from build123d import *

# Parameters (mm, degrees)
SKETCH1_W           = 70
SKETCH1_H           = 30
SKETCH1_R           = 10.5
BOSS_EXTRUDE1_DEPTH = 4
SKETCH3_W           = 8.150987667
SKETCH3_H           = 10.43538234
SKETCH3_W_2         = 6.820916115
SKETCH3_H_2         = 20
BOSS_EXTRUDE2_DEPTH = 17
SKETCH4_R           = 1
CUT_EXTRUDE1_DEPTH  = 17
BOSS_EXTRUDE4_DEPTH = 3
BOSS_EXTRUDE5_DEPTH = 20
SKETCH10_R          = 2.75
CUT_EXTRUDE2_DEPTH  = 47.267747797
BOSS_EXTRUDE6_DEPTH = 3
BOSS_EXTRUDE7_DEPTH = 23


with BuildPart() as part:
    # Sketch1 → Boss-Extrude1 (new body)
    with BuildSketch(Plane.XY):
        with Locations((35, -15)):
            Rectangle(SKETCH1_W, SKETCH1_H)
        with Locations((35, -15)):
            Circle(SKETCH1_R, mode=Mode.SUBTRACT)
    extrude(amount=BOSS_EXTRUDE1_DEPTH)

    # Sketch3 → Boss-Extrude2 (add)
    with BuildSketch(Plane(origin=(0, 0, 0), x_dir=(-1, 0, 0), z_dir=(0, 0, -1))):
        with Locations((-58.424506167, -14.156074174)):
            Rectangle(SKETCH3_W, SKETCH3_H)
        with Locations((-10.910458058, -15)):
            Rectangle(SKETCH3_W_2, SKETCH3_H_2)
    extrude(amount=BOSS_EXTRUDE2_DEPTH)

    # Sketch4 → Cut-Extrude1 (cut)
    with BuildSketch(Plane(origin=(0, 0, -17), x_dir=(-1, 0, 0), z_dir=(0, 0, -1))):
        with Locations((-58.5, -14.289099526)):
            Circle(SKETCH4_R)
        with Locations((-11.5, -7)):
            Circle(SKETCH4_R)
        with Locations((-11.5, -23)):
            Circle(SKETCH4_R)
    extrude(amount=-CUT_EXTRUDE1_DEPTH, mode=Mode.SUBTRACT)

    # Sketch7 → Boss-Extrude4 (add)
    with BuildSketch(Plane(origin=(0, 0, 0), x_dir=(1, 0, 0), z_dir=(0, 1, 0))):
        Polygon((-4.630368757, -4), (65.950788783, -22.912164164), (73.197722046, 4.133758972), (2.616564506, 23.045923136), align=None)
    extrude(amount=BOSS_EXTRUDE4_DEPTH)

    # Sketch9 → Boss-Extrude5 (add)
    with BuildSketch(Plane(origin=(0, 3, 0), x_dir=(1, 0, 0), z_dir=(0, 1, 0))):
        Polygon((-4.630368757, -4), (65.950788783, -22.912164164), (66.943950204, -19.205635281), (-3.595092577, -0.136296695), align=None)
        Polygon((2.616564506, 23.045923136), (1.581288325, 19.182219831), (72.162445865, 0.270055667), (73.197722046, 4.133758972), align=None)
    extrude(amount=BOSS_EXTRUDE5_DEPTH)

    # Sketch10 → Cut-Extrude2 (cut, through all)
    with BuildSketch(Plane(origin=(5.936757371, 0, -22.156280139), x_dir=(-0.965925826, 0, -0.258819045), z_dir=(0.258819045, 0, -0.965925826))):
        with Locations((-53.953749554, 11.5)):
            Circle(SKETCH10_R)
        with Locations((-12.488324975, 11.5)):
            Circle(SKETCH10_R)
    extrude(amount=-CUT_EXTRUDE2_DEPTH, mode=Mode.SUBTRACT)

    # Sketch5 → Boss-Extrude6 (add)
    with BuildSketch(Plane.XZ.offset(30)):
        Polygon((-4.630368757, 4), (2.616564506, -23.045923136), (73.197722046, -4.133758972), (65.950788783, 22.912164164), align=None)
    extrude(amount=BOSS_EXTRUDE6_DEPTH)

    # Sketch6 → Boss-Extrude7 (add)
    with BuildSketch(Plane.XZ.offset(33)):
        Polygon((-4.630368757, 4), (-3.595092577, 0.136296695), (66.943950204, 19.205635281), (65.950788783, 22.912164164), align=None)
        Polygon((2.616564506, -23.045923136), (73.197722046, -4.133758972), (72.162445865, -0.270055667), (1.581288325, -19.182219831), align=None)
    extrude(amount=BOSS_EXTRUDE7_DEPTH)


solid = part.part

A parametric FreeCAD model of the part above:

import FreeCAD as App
import Part
import Sketcher
from FreeCAD import Vector
Q = App.Units.Quantity

doc = App.newDocument("Part")
params = doc.addObject("Spreadsheet::Sheet", "Params")
for row, (alias, value) in enumerate([
    ("sketch1_diameter", "21 mm"),
    ("sketch1_width", "70 mm"),
    ("sketch1_height", "30 mm"),
    ("pad1_length", "4 mm"),
    ("sketch2_height", "20 mm"),
    ("pad2_length", "17 mm"),
    ("sketch3_diameter", "2 mm"),
    ("pocket1_length", "17 mm"),
    ("sketch4_length", "28 mm"),
    ("pad3_length", "3 mm"),
    ("sketch5_length", "4 mm"),
    ("pad4_length", "20 mm"),
    ("sketch6_diameter", "5.5 mm"),
    ("sketch7_length", "28 mm"),
    ("pad5_length", "3 mm"),
    ("sketch8_length", "4 mm"),
    ("pad6_length", "23 mm"),
], start=1):
    params.set(f"A{row}", alias)
    params.set(f"B{row}", "=" + value)
    params.setAlias(f"B{row}", alias)

body = doc.addObject("PartDesign::Body", "Body")

sketch1 = doc.addObject("Sketcher::SketchObject", "Sketch")
body.addObject(sketch1)
sketch1.AttachmentSupport = (doc.XY_Plane, [""])
sketch1.MapMode = "FlatFace"
sketch1.addGeometry([
    Part.LineSegment(Vector(0, 0, 0), Vector(0, -30, 0)),
    Part.LineSegment(Vector(0, -30, 0), Vector(70, -30, 0)),
    Part.LineSegment(Vector(70, -30, 0), Vector(70, 0, 0)),
    Part.LineSegment(Vector(70, 0, 0), Vector(0, 0, 0)),
    Part.Circle(Vector(35, -15, 0), Vector(0, 0, 1), 10),
], False)
sketch1.addConstraint([
    Sketcher.Constraint("Coincident", 0, 2, 1, 1),
    Sketcher.Constraint("Coincident", 1, 2, 2, 1),
    Sketcher.Constraint("Coincident", 2, 2, 3, 1),
    Sketcher.Constraint("Coincident", 3, 2, 0, 1),
    Sketcher.Constraint("Vertical", 0),
    Sketcher.Constraint("Horizontal", 1),
    Sketcher.Constraint("Vertical", 2),
    Sketcher.Constraint("Horizontal", 3),
    Sketcher.Constraint("Coincident", 3, 2, -1, 1),
    Sketcher.Constraint("Diameter", 4, Q("21 mm")),
    Sketcher.Constraint("DistanceX", 1, 1, 1, 2, Q("70 mm")),
    Sketcher.Constraint("DistanceY", 0, 2, 0, 1, Q("30 mm")),
    Sketcher.Constraint("DistanceX", -1, 1, 4, 3, Q("35 mm")),
    Sketcher.Constraint("DistanceY", 4, 3, -1, 1, Q("15 mm")),
])
sketch1.setExpression("Constraints[9]", "Params.sketch1_diameter")
sketch1.setExpression("Constraints[10]", "Params.sketch1_width")
sketch1.setExpression("Constraints[11]", "Params.sketch1_height")
pad1 = doc.addObject("PartDesign::Pad", "Pad")
body.addObject(pad1)
pad1.Profile = sketch1
pad1.setExpression("Length", "Params.pad1_length")

sketch2 = doc.addObject("Sketcher::SketchObject", "Sketch001")
body.addObject(sketch2)
sketch2.AttachmentSupport = (doc.XY_Plane, [""])
sketch2.MapMode = "FlatFace"
sketch2.addGeometry([
    Part.LineSegment(Vector(62, -9, 0), Vector(62, -19, 0)),
    Part.LineSegment(Vector(62, -19, 0), Vector(54, -19, 0)),
    Part.LineSegment(Vector(54, -19, 0), Vector(54, -9, 0)),
    Part.LineSegment(Vector(54, -9, 0), Vector(62, -9, 0)),
    Part.LineSegment(Vector(14, -5, 0), Vector(14, -25, 0)),
    Part.LineSegment(Vector(14, -25, 0), Vector(8, -25, 0)),
    Part.LineSegment(Vector(8, -25, 0), Vector(8, -5, 0)),
    Part.LineSegment(Vector(8, -5, 0), Vector(14, -5, 0)),
], False)
sketch2.addConstraint([
    Sketcher.Constraint("Coincident", 0, 2, 1, 1),
    Sketcher.Constraint("Coincident", 1, 2, 2, 1),
    Sketcher.Constraint("Coincident", 2, 2, 3, 1),
    Sketcher.Constraint("Coincident", 3, 2, 0, 1),
    Sketcher.Constraint("Coincident", 4, 2, 5, 1),
    Sketcher.Constraint("Coincident", 5, 2, 6, 1),
    Sketcher.Constraint("Coincident", 6, 2, 7, 1),
    Sketcher.Constraint("Coincident", 7, 2, 4, 1),
    Sketcher.Constraint("Vertical", 0),
    Sketcher.Constraint("Horizontal", 1),
    Sketcher.Constraint("Vertical", 2),
    Sketcher.Constraint("Horizontal", 3),
    Sketcher.Constraint("Vertical", 4),
    Sketcher.Constraint("Horizontal", 5),
    Sketcher.Constraint("Vertical", 6),
    Sketcher.Constraint("Horizontal", 7),
    Sketcher.Constraint("DistanceY", 4, 2, 4, 1, Q("20 mm")),
    Sketcher.Constraint("DistanceY", 4, 2, -1, 1, Q("25 mm")),
    Sketcher.Constraint("DistanceX", 5, 2, 0, 2, Q("55 mm")),
    Sketcher.Constraint("DistanceX", -1, 1, 0, 2, Q("62.5 mm")),
    Sketcher.Constraint("DistanceX", 1, 2, 1, 1, Q("8.150988 mm")),
    Sketcher.Constraint("DistanceX", 5, 2, 5, 1, Q("6.820916 mm")),
    Sketcher.Constraint("DistanceY", 0, 2, 0, 1, Q("10.435382 mm")),
    Sketcher.Constraint("DistanceY", 0, 2, -1, 1, Q("19.373765 mm")),
])
sketch2.setExpression("Constraints[16]", "Params.sketch2_height")
pad2 = doc.addObject("PartDesign::Pad", "Pad001")
body.addObject(pad2)
pad2.Profile = sketch2
pad2.setExpression("Length", "Params.pad2_length")
pad2.Reversed = True

sketch3 = doc.addObject("Sketcher::SketchObject", "Sketch002")
body.addObject(sketch3)
sketch3.AttachmentSupport = (doc.XY_Plane, [""])
sketch3.MapMode = "FlatFace"
sketch3.AttachmentOffset = App.Placement(Vector(0, 0, -17), App.Rotation())
sketch3.addGeometry([
    Part.Circle(Vector(58.5, -14.3, 0), Vector(0, 0, 1), 1),
    Part.Circle(Vector(11.5, -7, 0), Vector(0, 0, 1), 1),
    Part.Circle(Vector(11.5, -23, 0), Vector(0, 0, 1), 1),
], False)
sketch3.addConstraint([
    Sketcher.Constraint("Equal", 0, 1),
    Sketcher.Constraint("Equal", 1, 2),
    Sketcher.Constraint("Vertical", 1, 3, 2, 3),
    Sketcher.Constraint("Diameter", 0, Q("2 mm")),
    Sketcher.Constraint("DistanceY", 1, 3, -1, 1, Q("7 mm")),
    Sketcher.Constraint("DistanceY", 2, 3, -1, 1, Q("23 mm")),
    Sketcher.Constraint("DistanceX", 1, 3, 0, 3, Q("47 mm")),
    Sketcher.Constraint("DistanceX", -1, 1, 0, 3, Q("58.5 mm")),
    Sketcher.Constraint("DistanceY", 0, 3, -1, 1, Q("14.2891 mm")),
])
sketch3.setExpression("Constraints[3]", "Params.sketch3_diameter")
pocket1 = doc.addObject("PartDesign::Pocket", "Pocket")
body.addObject(pocket1)
pocket1.Profile = sketch3
pocket1.setExpression("Length", "Params.pocket1_length")
pocket1.Reversed = True

sketch4 = doc.addObject("Sketcher::SketchObject", "Sketch003")
body.addObject(sketch4)
sketch4.AttachmentSupport = (doc.XZ_Plane, [""])
sketch4.MapMode = "FlatFace"
sketch4.addGeometry([
    Part.LineSegment(Vector(-5, 4, 0), Vector(66, 23, 0)),
    Part.LineSegment(Vector(66, 23, 0), Vector(73, -4, 0)),
    Part.LineSegment(Vector(73, -4, 0), Vector(3, -23, 0)),
    Part.LineSegment(Vector(3, -23, 0), Vector(-5, 4, 0)),
], False)
sketch4.addConstraint([
    Sketcher.Constraint("Coincident", 0, 2, 1, 1),
    Sketcher.Constraint("Coincident", 1, 2, 2, 1),
    Sketcher.Constraint("Coincident", 2, 2, 3, 1),
    Sketcher.Constraint("Coincident", 3, 2, 0, 1),
    Sketcher.Constraint("Perpendicular", 0, 1),
    Sketcher.Constraint("Perpendicular", 1, 2),
    Sketcher.Constraint("Perpendicular", 2, 3),
    Sketcher.Constraint("Angle", 0, Q("15 deg")),
    Sketcher.Constraint("Distance", 1, Q("28 mm")),
    Sketcher.Constraint("DistanceY", -1, 1, 3, 2, Q("4 mm")),
    Sketcher.Constraint("Distance", 0, Q("73.070991 mm")),
    Sketcher.Constraint("DistanceX", -1, 1, 0, 2, Q("65.950789 mm")),
])
sketch4.setExpression("Constraints[8]", "Params.sketch4_length")
pad3 = doc.addObject("PartDesign::Pad", "Pad002")
body.addObject(pad3)
pad3.Profile = sketch4
pad3.setExpression("Length", "Params.pad3_length")
pad3.Reversed = True

sketch5 = doc.addObject("Sketcher::SketchObject", "Sketch004")
body.addObject(sketch5)
sketch5.AttachmentSupport = (doc.XZ_Plane, [""])
sketch5.MapMode = "FlatFace"
sketch5.AttachmentOffset = App.Placement(Vector(0, 0, -3), App.Rotation())
sketch5.addGeometry([
    Part.LineSegment(Vector(-4.6, 4, 0), Vector(66, 22.9, 0)),
    Part.LineSegment(Vector(66, 22.9, 0), Vector(66.9, 19.2, 0)),
    Part.LineSegment(Vector(66.9, 19.2, 0), Vector(-3.6, 0.1, 0)),
    Part.LineSegment(Vector(-3.6, 0.1, 0), Vector(-4.6, 4, 0)),
    Part.LineSegment(Vector(2.6, -23, 0), Vector(1.6, -19.2, 0)),
    Part.LineSegment(Vector(1.6, -19.2, 0), Vector(72.2, -0.3, 0)),
    Part.LineSegment(Vector(72.2, -0.3, 0), Vector(73.2, -4.1, 0)),
    Part.LineSegment(Vector(73.2, -4.1, 0), Vector(2.6, -23, 0)),
], False)
sketch5.addConstraint([
    Sketcher.Constraint("Coincident", 0, 2, 1, 1),
    Sketcher.Constraint("Coincident", 1, 2, 2, 1),
    Sketcher.Constraint("Coincident", 2, 2, 3, 1),
    Sketcher.Constraint("Coincident", 3, 2, 0, 1),
    Sketcher.Constraint("Coincident", 4, 2, 5, 1),
    Sketcher.Constraint("Coincident", 5, 2, 6, 1),
    Sketcher.Constraint("Coincident", 6, 2, 7, 1),
    Sketcher.Constraint("Coincident", 7, 2, 4, 1),
    Sketcher.Constraint("Perpendicular", 0, 1),
    Sketcher.Constraint("Parallel", 1, 3),
    Sketcher.Constraint("Parallel", 3, 4),
    Sketcher.Constraint("Perpendicular", 4, 5),
    Sketcher.Constraint("Perpendicular", 5, 6),
    Sketcher.Constraint("Perpendicular", 6, 7),
    Sketcher.Constraint("Equal", 3, 4),
    Sketcher.Constraint("Equal", 0, 5),
    Sketcher.Constraint("Angle", 0, Q("15 deg")),
    Sketcher.Constraint("Distance", 3, Q("4 mm")),
    Sketcher.Constraint("DistanceY", -1, 1, 3, 2, Q("4 mm")),
    Sketcher.Constraint("DistanceX", 4, 2, 0, 2, Q("64.3695 mm")),
    Sketcher.Constraint("Distance", 0, Q("73.070991 mm")),
    Sketcher.Constraint("Distance", 1, Q("3.837281 mm")),
    Sketcher.Constraint("DistanceX", -1, 1, 0, 2, Q("65.950789 mm")),
    Sketcher.Constraint("DistanceY", 4, 2, -1, 1, Q("19.18222 mm")),
])
sketch5.setExpression("Constraints[17]", "Params.sketch5_length")
pad4 = doc.addObject("PartDesign::Pad", "Pad003")
body.addObject(pad4)
pad4.Profile = sketch5
pad4.setExpression("Length", "Params.pad4_length")
pad4.Reversed = True

sketch6 = doc.addObject("Sketcher::SketchObject", "Sketch005")
body.addObject(sketch6)
sketch6.Placement = App.Placement(Vector(5.936757, 0, -22.15628), App.Rotation(Vector(-0.965925826, 0, -0.258819045), Vector(0, 0.999999999, 0), Vector(0.258819045, 0, -0.965925826), "ZXY"))
sketch6.addGeometry([
    Part.Circle(Vector(-54, 11.5, 0), Vector(0, 0, 1), 2.8),
    Part.Circle(Vector(-12.5, 11.5, 0), Vector(0, 0, 1), 2.8),
], False)
sketch6.addConstraint([
    Sketcher.Constraint("Equal", 0, 1),
    Sketcher.Constraint("Horizontal", 0, 3, 1, 3),
    Sketcher.Constraint("Diameter", 0, Q("5.5 mm")),
    Sketcher.Constraint("DistanceY", -1, 1, 0, 3, Q("11.5 mm")),
    Sketcher.Constraint("DistanceX", 0, 3, -1, 1, Q("53.95375 mm")),
    Sketcher.Constraint("DistanceX", 1, 3, -1, 1, Q("12.488325 mm")),
])
sketch6.setExpression("Constraints[2]", "Params.sketch6_diameter")
pocket2 = doc.addObject("PartDesign::Pocket", "Pocket001")
body.addObject(pocket2)
pocket2.Profile = sketch6
pocket2.Type = "ThroughAll"

sketch7 = doc.addObject("Sketcher::SketchObject", "Sketch006")
body.addObject(sketch7)
sketch7.AttachmentSupport = (doc.XZ_Plane, [""])
sketch7.MapMode = "FlatFace"
sketch7.AttachmentOffset = App.Placement(Vector(0, 0, 30), App.Rotation())
sketch7.addGeometry([
    Part.LineSegment(Vector(-5, 4, 0), Vector(3, -23, 0)),
    Part.LineSegment(Vector(3, -23, 0), Vector(73, -4, 0)),
    Part.LineSegment(Vector(73, -4, 0), Vector(66, 23, 0)),
    Part.LineSegment(Vector(66, 23, 0), Vector(-5, 4, 0)),
], False)
sketch7.addConstraint([
    Sketcher.Constraint("Coincident", 0, 2, 1, 1),
    Sketcher.Constraint("Coincident", 1, 2, 2, 1),
    Sketcher.Constraint("Coincident", 2, 2, 3, 1),
    Sketcher.Constraint("Coincident", 3, 2, 0, 1),
    Sketcher.Constraint("Perpendicular", 0, 1),
    Sketcher.Constraint("Perpendicular", 1, 2),
    Sketcher.Constraint("Perpendicular", 2, 3),
    Sketcher.Constraint("Angle", 0, Q("-75 deg")),
    Sketcher.Constraint("Distance", 0, Q("28 mm")),
    Sketcher.Constraint("DistanceY", -1, 1, 3, 2, Q("4 mm")),
    Sketcher.Constraint("Distance", 1, Q("73.070991 mm")),
    Sketcher.Constraint("DistanceX", -1, 1, 2, 2, Q("65.950789 mm")),
])
sketch7.setExpression("Constraints[8]", "Params.sketch7_length")
pad5 = doc.addObject("PartDesign::Pad", "Pad004")
body.addObject(pad5)
pad5.Profile = sketch7
pad5.setExpression("Length", "Params.pad5_length")

sketch8 = doc.addObject("Sketcher::SketchObject", "Sketch007")
body.addObject(sketch8)
sketch8.AttachmentSupport = (doc.XZ_Plane, [""])
sketch8.MapMode = "FlatFace"
sketch8.AttachmentOffset = App.Placement(Vector(0, 0, 33), App.Rotation())
sketch8.addGeometry([
    Part.LineSegment(Vector(-4.6, 4, 0), Vector(-3.6, 0.1, 0)),
    Part.LineSegment(Vector(-3.6, 0.1, 0), Vector(66.9, 19.2, 0)),
    Part.LineSegment(Vector(66.9, 19.2, 0), Vector(66, 22.9, 0)),
    Part.LineSegment(Vector(66, 22.9, 0), Vector(-4.6, 4, 0)),
    Part.LineSegment(Vector(2.6, -23, 0), Vector(73.2, -4.1, 0)),
    Part.LineSegment(Vector(73.2, -4.1, 0), Vector(72.2, -0.3, 0)),
    Part.LineSegment(Vector(72.2, -0.3, 0), Vector(1.6, -19.2, 0)),
    Part.LineSegment(Vector(1.6, -19.2, 0), Vector(2.6, -23, 0)),
], False)
sketch8.addConstraint([
    Sketcher.Constraint("Coincident", 0, 2, 1, 1),
    Sketcher.Constraint("Coincident", 1, 2, 2, 1),
    Sketcher.Constraint("Coincident", 2, 2, 3, 1),
    Sketcher.Constraint("Coincident", 3, 2, 0, 1),
    Sketcher.Constraint("Coincident", 4, 2, 5, 1),
    Sketcher.Constraint("Coincident", 5, 2, 6, 1),
    Sketcher.Constraint("Coincident", 6, 2, 7, 1),
    Sketcher.Constraint("Coincident", 7, 2, 4, 1),
    Sketcher.Constraint("Parallel", 0, 2),
    Sketcher.Constraint("Perpendicular", 2, 3),
    Sketcher.Constraint("Parallel", 3, 4),
    Sketcher.Constraint("Perpendicular", 4, 5),
    Sketcher.Constraint("Perpendicular", 5, 6),
    Sketcher.Constraint("Perpendicular", 6, 7),
    Sketcher.Constraint("Equal", 3, 4),
    Sketcher.Constraint("Equal", 0, 5),
    Sketcher.Constraint("Angle", 0, Q("-75 deg")),
    Sketcher.Constraint("Distance", 0, Q("4 mm")),
    Sketcher.Constraint("DistanceY", -1, 1, 3, 2, Q("4 mm")),
    Sketcher.Constraint("Distance", 2, Q("3.837281 mm")),
    Sketcher.Constraint("Distance", 3, Q("73.070991 mm")),
    Sketcher.Constraint("DistanceX", -1, 1, 1, 2, Q("66.94395 mm")),
    Sketcher.Constraint("DistanceY", 4, 2, -1, 1, Q("4.133759 mm")),
    Sketcher.Constraint("DistanceX", -1, 1, 6, 2, Q("1.581288 mm")),
])
sketch8.setExpression("Constraints[17]", "Params.sketch8_length")
pad6 = doc.addObject("PartDesign::Pad", "Pad005")
body.addObject(pad6)
pad6.Profile = sketch8
pad6.setExpression("Length", "Params.pad6_length")

doc.recompute()
